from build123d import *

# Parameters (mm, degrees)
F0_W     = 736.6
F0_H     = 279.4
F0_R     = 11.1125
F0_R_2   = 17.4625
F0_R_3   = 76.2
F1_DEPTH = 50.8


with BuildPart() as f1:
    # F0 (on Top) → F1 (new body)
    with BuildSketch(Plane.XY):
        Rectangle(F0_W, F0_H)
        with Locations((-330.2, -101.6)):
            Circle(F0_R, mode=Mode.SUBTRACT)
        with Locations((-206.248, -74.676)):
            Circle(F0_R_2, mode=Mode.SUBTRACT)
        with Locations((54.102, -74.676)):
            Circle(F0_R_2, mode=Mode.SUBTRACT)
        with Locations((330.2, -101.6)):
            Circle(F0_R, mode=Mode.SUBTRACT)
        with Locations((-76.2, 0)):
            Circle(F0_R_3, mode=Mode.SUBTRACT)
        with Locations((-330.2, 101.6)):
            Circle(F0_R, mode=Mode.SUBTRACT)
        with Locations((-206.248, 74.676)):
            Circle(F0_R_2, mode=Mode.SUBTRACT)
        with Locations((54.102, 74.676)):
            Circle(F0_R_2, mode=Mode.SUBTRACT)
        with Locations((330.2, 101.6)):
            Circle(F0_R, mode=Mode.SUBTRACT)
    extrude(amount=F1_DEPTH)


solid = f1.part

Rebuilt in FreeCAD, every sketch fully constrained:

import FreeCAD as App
import Part
import Sketcher
from FreeCAD import Vector
Q = App.Units.Quantity

doc = App.newDocument("Part")
body = doc.addObject("PartDesign::Body", "Body")

# Sketch on XY plane
sketch1 = body.newObject("Sketcher::SketchObject", "Sketch")
sketch1.AttachmentSupport = (doc.getObject("XY_Plane"), [""])
sketch1.MapMode = "FlatFace"
sketch1.addGeometry([
    Part.LineSegment(Vector(-368, 140, 0), Vector(-368, -140, 0)),  # 0
    Part.LineSegment(Vector(-368, -140, 0), Vector(368, -140, 0)),  # 1
    Part.LineSegment(Vector(368, -140, 0), Vector(368, 140, 0)),  # 2
    Part.LineSegment(Vector(368, 140, 0), Vector(-368, 140, 0)),  # 3
    Part.Circle(Vector(-330, -102, 0), Vector(0, 0, 1), 11),  # 4
    Part.Circle(Vector(-206, -75, 0), Vector(0, 0, 1), 17),  # 5
    Part.Circle(Vector(-76, 0, 0), Vector(0, 0, 1), 76),  # 6
    Part.Circle(Vector(54, -75, 0), Vector(0, 0, 1), 17),  # 7
    Part.Circle(Vector(330, -102, 0), Vector(0, 0, 1), 11),  # 8
    Part.Circle(Vector(-206, 75, 0), Vector(0, 0, 1), 17),  # 9
    Part.Circle(Vector(-330, 102, 0), Vector(0, 0, 1), 11),  # 10
    Part.Circle(Vector(54, 75, 0), Vector(0, 0, 1), 17),  # 11
    Part.Circle(Vector(330, 102, 0), Vector(0, 0, 1), 11),  # 12
], False)
sketch1.addConstraint([
    Sketcher.Constraint("Coincident", 0, 2, 1, 1),
    Sketcher.Constraint("Coincident", 1, 2, 2, 1),
    Sketcher.Constraint("Coincident", 2, 2, 3, 1),
    Sketcher.Constraint("Coincident", 3, 2, 0, 1),
    Sketcher.Constraint("Vertical", 0),
    Sketcher.Constraint("Horizontal", 1),
    Sketcher.Constraint("Vertical", 2),
    Sketcher.Constraint("Horizontal", 3),
    Sketcher.Constraint("Equal", 5, 7),
    Sketcher.Constraint("Equal", 4, 8),
    Sketcher.Constraint("Equal", 7, 9),
    Sketcher.Constraint("Equal", 8, 10),
    Sketcher.Constraint("Equal", 9, 11),
    Sketcher.Constraint("Equal", 10, 12),
    Sketcher.Constraint("Symmetric", 8, 3, 10, 3, -1, 1),
    Sketcher.Constraint("Symmetric", 4, 3, 12, 3, -1, 1),
    Sketcher.Constraint("Symmetric", 0, 2, 2, 2, -1, 1),
    Sketcher.Constraint("Symmetric", 4, 3, 8, 3, -2),
    Sketcher.Constraint("Symmetric", 5, 3, 9, 3, -1),
    Sketcher.Constraint("Symmetric", 7, 3, 11, 3, -1),
    Sketcher.Constraint("PointOnObject", 6, 3, -1),
    Sketcher.Constraint("Horizontal", 5, 3, 7, 3),
    Sketcher.Constraint("Diameter", 6, Q("6 in")),
    Sketcher.Constraint("DistanceX", 1, 1, 1, 2, Q("29 in")),
    Sketcher.Constraint("DistanceY", 0, 2, 0, 1, Q("11 in")),
    Sketcher.Constraint("Diameter", 4, Q("0.875 in")),
    Sketcher.Constraint("Diameter", 5, Q("1.375 in")),
    Sketcher.Constraint("DistanceX", 4, 3, -1, 1, Q("13 in")),
    Sketcher.Constraint("DistanceY", 4, 3, -1, 1, Q("4 in")),
    Sketcher.Constraint("DistanceX", 6, 3, -1, 1, Q("3 in")),
    Sketcher.Constraint("DistanceX", 5, 3, -1, 1, Q("8.12 in")),
    Sketcher.Constraint("DistanceY", 5, 3, -1, 1, Q("2.94 in")),
    Sketcher.Constraint("DistanceX", -1, 1, 7, 3, Q("2.13 in")),
])
pad1 = body.newObject("PartDesign::Pad", "Pad")
pad1.Profile = sketch1
pad1.Length = Q("2 in")

doc.recompute()
